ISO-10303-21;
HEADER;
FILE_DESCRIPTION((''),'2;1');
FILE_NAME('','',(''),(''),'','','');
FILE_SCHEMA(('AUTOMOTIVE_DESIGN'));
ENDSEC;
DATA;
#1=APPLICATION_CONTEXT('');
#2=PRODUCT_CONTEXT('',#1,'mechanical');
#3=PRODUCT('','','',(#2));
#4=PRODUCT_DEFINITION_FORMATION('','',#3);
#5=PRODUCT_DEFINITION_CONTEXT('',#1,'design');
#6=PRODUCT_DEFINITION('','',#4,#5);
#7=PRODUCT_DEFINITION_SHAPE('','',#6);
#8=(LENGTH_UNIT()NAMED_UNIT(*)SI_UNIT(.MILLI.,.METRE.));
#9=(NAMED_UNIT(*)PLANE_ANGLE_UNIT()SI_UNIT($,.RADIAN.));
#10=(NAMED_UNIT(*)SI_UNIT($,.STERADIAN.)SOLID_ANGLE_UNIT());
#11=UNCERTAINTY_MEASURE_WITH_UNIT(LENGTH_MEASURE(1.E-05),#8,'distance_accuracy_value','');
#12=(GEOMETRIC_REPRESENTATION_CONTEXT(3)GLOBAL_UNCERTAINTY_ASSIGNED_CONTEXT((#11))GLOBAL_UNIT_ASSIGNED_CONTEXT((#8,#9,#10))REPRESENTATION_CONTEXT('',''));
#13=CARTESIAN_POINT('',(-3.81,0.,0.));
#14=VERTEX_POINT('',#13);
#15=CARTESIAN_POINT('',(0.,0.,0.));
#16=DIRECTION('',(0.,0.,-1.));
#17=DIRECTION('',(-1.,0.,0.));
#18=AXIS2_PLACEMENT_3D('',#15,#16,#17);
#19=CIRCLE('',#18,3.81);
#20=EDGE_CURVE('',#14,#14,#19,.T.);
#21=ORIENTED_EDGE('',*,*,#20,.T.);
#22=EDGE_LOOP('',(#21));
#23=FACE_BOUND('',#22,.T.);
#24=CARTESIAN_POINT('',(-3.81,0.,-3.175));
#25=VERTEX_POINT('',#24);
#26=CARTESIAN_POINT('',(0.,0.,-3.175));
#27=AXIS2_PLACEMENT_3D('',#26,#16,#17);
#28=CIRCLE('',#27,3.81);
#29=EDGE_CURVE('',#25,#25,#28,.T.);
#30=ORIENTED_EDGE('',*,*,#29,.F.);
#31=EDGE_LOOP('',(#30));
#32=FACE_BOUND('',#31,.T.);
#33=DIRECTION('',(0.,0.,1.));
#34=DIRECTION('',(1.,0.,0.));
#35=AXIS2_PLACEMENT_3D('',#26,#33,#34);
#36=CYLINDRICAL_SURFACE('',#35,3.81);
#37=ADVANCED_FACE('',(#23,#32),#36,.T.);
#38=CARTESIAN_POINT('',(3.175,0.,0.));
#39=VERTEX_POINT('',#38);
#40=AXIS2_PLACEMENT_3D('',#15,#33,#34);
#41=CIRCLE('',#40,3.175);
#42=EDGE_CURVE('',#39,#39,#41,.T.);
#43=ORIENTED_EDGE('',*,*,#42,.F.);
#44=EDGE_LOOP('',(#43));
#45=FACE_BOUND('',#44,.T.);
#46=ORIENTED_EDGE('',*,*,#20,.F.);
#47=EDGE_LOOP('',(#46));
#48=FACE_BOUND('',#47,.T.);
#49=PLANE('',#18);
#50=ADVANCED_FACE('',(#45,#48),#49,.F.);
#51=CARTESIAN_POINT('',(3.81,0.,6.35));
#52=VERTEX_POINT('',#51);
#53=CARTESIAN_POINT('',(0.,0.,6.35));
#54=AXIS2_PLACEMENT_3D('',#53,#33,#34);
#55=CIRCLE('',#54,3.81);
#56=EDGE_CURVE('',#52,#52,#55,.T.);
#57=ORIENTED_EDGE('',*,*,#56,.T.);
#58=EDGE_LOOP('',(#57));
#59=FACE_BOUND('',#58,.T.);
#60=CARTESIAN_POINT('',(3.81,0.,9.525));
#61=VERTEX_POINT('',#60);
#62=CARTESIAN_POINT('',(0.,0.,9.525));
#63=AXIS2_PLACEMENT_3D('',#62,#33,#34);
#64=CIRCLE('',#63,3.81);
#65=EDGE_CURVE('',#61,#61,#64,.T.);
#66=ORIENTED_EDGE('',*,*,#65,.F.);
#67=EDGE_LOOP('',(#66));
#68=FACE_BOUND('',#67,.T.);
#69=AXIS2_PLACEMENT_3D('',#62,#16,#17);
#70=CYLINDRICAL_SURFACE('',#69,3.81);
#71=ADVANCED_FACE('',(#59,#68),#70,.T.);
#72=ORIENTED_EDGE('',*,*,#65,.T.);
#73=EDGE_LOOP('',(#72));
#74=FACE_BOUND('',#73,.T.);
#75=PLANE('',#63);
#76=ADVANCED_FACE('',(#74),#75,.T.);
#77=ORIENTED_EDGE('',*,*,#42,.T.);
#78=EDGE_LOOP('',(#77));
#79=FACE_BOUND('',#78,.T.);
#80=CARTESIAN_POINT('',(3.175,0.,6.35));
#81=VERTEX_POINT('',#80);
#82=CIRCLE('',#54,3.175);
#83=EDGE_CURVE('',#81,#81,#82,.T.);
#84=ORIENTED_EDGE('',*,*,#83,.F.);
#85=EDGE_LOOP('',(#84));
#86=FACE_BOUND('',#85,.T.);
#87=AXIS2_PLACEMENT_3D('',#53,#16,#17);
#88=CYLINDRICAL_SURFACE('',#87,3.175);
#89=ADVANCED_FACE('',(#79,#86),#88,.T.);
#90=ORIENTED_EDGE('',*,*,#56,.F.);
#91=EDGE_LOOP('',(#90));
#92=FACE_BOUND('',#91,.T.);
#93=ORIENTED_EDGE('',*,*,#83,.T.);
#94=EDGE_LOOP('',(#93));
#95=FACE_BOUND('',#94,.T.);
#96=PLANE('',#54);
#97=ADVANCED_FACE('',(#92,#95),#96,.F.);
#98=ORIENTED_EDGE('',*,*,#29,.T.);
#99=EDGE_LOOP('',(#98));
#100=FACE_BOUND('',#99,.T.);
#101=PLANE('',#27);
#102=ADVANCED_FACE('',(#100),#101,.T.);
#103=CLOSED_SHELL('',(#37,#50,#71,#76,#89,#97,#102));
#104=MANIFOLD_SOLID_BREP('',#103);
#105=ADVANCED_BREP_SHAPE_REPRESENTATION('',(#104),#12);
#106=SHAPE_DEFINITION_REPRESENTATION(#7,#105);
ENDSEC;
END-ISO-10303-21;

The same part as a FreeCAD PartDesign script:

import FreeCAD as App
import Part
import Sketcher
from FreeCAD import Vector
Q = App.Units.Quantity

doc = App.newDocument("Part")
body = doc.addObject("PartDesign::Body", "Body")

sketch1 = doc.addObject("Sketcher::SketchObject", "Sketch")
body.addObject(sketch1)
sketch1.AttachmentSupport = (doc.XY_Plane, [""])
sketch1.MapMode = "FlatFace"
sketch1.addGeometry(Part.Circle(Vector(0, 0, 0), Vector(0, 0, 1), 3.2), False)
sketch1.addConstraint([
    Sketcher.Constraint("Coincident", 0, 3, -1, 1),
    Sketcher.Constraint("Diameter", 0, Q("0.25 in")),
])
pad1 = doc.addObject("PartDesign::Pad", "Pad")
body.addObject(pad1)
pad1.Profile = sketch1
pad1.Length = Q("0.25 in")

sketch2 = doc.addObject("Sketcher::SketchObject", "Sketch001")
body.addObject(sketch2)
sketch2.AttachmentSupport = (doc.XY_Plane, [""])
sketch2.MapMode = "FlatFace"
sketch2.AttachmentOffset = App.Placement(Vector(0, 0, 0.25 * 25.4), App.Rotation())
sketch2.addGeometry(Part.Circle(Vector(0, 0, 0), Vector(0, 0, 1), 3.8), False)
sketch2.addConstraint([
    Sketcher.Constraint("Coincident", 0, 3, -1, 1),
    Sketcher.Constraint("Diameter", 0, Q("0.3 in")),
])
pad2 = doc.addObject("PartDesign::Pad", "Pad001")
body.addObject(pad2)
pad2.Profile = sketch2
pad2.Length = Q("0.125 in")

sketch3 = doc.addObject("Sketcher::SketchObject", "Sketch002")
body.addObject(sketch3)
sketch3.AttachmentSupport = (doc.XY_Plane, [""])
sketch3.MapMode = "FlatFace"
sketch3.addGeometry(Part.Circle(Vector(0, 0, 0), Vector(0, 0, 1), 3.8), False)
sketch3.addConstraint([
    Sketcher.Constraint("Coincident", 0, 3, -1, 1),
    Sketcher.Constraint("Diameter", 0, Q("0.3 in")),
])
pad3 = doc.addObject("PartDesign::Pad", "Pad002")
body.addObject(pad3)
pad3.Profile = sketch3
pad3.Length = Q("0.125 in")
pad3.Reversed = True

doc.recompute()
